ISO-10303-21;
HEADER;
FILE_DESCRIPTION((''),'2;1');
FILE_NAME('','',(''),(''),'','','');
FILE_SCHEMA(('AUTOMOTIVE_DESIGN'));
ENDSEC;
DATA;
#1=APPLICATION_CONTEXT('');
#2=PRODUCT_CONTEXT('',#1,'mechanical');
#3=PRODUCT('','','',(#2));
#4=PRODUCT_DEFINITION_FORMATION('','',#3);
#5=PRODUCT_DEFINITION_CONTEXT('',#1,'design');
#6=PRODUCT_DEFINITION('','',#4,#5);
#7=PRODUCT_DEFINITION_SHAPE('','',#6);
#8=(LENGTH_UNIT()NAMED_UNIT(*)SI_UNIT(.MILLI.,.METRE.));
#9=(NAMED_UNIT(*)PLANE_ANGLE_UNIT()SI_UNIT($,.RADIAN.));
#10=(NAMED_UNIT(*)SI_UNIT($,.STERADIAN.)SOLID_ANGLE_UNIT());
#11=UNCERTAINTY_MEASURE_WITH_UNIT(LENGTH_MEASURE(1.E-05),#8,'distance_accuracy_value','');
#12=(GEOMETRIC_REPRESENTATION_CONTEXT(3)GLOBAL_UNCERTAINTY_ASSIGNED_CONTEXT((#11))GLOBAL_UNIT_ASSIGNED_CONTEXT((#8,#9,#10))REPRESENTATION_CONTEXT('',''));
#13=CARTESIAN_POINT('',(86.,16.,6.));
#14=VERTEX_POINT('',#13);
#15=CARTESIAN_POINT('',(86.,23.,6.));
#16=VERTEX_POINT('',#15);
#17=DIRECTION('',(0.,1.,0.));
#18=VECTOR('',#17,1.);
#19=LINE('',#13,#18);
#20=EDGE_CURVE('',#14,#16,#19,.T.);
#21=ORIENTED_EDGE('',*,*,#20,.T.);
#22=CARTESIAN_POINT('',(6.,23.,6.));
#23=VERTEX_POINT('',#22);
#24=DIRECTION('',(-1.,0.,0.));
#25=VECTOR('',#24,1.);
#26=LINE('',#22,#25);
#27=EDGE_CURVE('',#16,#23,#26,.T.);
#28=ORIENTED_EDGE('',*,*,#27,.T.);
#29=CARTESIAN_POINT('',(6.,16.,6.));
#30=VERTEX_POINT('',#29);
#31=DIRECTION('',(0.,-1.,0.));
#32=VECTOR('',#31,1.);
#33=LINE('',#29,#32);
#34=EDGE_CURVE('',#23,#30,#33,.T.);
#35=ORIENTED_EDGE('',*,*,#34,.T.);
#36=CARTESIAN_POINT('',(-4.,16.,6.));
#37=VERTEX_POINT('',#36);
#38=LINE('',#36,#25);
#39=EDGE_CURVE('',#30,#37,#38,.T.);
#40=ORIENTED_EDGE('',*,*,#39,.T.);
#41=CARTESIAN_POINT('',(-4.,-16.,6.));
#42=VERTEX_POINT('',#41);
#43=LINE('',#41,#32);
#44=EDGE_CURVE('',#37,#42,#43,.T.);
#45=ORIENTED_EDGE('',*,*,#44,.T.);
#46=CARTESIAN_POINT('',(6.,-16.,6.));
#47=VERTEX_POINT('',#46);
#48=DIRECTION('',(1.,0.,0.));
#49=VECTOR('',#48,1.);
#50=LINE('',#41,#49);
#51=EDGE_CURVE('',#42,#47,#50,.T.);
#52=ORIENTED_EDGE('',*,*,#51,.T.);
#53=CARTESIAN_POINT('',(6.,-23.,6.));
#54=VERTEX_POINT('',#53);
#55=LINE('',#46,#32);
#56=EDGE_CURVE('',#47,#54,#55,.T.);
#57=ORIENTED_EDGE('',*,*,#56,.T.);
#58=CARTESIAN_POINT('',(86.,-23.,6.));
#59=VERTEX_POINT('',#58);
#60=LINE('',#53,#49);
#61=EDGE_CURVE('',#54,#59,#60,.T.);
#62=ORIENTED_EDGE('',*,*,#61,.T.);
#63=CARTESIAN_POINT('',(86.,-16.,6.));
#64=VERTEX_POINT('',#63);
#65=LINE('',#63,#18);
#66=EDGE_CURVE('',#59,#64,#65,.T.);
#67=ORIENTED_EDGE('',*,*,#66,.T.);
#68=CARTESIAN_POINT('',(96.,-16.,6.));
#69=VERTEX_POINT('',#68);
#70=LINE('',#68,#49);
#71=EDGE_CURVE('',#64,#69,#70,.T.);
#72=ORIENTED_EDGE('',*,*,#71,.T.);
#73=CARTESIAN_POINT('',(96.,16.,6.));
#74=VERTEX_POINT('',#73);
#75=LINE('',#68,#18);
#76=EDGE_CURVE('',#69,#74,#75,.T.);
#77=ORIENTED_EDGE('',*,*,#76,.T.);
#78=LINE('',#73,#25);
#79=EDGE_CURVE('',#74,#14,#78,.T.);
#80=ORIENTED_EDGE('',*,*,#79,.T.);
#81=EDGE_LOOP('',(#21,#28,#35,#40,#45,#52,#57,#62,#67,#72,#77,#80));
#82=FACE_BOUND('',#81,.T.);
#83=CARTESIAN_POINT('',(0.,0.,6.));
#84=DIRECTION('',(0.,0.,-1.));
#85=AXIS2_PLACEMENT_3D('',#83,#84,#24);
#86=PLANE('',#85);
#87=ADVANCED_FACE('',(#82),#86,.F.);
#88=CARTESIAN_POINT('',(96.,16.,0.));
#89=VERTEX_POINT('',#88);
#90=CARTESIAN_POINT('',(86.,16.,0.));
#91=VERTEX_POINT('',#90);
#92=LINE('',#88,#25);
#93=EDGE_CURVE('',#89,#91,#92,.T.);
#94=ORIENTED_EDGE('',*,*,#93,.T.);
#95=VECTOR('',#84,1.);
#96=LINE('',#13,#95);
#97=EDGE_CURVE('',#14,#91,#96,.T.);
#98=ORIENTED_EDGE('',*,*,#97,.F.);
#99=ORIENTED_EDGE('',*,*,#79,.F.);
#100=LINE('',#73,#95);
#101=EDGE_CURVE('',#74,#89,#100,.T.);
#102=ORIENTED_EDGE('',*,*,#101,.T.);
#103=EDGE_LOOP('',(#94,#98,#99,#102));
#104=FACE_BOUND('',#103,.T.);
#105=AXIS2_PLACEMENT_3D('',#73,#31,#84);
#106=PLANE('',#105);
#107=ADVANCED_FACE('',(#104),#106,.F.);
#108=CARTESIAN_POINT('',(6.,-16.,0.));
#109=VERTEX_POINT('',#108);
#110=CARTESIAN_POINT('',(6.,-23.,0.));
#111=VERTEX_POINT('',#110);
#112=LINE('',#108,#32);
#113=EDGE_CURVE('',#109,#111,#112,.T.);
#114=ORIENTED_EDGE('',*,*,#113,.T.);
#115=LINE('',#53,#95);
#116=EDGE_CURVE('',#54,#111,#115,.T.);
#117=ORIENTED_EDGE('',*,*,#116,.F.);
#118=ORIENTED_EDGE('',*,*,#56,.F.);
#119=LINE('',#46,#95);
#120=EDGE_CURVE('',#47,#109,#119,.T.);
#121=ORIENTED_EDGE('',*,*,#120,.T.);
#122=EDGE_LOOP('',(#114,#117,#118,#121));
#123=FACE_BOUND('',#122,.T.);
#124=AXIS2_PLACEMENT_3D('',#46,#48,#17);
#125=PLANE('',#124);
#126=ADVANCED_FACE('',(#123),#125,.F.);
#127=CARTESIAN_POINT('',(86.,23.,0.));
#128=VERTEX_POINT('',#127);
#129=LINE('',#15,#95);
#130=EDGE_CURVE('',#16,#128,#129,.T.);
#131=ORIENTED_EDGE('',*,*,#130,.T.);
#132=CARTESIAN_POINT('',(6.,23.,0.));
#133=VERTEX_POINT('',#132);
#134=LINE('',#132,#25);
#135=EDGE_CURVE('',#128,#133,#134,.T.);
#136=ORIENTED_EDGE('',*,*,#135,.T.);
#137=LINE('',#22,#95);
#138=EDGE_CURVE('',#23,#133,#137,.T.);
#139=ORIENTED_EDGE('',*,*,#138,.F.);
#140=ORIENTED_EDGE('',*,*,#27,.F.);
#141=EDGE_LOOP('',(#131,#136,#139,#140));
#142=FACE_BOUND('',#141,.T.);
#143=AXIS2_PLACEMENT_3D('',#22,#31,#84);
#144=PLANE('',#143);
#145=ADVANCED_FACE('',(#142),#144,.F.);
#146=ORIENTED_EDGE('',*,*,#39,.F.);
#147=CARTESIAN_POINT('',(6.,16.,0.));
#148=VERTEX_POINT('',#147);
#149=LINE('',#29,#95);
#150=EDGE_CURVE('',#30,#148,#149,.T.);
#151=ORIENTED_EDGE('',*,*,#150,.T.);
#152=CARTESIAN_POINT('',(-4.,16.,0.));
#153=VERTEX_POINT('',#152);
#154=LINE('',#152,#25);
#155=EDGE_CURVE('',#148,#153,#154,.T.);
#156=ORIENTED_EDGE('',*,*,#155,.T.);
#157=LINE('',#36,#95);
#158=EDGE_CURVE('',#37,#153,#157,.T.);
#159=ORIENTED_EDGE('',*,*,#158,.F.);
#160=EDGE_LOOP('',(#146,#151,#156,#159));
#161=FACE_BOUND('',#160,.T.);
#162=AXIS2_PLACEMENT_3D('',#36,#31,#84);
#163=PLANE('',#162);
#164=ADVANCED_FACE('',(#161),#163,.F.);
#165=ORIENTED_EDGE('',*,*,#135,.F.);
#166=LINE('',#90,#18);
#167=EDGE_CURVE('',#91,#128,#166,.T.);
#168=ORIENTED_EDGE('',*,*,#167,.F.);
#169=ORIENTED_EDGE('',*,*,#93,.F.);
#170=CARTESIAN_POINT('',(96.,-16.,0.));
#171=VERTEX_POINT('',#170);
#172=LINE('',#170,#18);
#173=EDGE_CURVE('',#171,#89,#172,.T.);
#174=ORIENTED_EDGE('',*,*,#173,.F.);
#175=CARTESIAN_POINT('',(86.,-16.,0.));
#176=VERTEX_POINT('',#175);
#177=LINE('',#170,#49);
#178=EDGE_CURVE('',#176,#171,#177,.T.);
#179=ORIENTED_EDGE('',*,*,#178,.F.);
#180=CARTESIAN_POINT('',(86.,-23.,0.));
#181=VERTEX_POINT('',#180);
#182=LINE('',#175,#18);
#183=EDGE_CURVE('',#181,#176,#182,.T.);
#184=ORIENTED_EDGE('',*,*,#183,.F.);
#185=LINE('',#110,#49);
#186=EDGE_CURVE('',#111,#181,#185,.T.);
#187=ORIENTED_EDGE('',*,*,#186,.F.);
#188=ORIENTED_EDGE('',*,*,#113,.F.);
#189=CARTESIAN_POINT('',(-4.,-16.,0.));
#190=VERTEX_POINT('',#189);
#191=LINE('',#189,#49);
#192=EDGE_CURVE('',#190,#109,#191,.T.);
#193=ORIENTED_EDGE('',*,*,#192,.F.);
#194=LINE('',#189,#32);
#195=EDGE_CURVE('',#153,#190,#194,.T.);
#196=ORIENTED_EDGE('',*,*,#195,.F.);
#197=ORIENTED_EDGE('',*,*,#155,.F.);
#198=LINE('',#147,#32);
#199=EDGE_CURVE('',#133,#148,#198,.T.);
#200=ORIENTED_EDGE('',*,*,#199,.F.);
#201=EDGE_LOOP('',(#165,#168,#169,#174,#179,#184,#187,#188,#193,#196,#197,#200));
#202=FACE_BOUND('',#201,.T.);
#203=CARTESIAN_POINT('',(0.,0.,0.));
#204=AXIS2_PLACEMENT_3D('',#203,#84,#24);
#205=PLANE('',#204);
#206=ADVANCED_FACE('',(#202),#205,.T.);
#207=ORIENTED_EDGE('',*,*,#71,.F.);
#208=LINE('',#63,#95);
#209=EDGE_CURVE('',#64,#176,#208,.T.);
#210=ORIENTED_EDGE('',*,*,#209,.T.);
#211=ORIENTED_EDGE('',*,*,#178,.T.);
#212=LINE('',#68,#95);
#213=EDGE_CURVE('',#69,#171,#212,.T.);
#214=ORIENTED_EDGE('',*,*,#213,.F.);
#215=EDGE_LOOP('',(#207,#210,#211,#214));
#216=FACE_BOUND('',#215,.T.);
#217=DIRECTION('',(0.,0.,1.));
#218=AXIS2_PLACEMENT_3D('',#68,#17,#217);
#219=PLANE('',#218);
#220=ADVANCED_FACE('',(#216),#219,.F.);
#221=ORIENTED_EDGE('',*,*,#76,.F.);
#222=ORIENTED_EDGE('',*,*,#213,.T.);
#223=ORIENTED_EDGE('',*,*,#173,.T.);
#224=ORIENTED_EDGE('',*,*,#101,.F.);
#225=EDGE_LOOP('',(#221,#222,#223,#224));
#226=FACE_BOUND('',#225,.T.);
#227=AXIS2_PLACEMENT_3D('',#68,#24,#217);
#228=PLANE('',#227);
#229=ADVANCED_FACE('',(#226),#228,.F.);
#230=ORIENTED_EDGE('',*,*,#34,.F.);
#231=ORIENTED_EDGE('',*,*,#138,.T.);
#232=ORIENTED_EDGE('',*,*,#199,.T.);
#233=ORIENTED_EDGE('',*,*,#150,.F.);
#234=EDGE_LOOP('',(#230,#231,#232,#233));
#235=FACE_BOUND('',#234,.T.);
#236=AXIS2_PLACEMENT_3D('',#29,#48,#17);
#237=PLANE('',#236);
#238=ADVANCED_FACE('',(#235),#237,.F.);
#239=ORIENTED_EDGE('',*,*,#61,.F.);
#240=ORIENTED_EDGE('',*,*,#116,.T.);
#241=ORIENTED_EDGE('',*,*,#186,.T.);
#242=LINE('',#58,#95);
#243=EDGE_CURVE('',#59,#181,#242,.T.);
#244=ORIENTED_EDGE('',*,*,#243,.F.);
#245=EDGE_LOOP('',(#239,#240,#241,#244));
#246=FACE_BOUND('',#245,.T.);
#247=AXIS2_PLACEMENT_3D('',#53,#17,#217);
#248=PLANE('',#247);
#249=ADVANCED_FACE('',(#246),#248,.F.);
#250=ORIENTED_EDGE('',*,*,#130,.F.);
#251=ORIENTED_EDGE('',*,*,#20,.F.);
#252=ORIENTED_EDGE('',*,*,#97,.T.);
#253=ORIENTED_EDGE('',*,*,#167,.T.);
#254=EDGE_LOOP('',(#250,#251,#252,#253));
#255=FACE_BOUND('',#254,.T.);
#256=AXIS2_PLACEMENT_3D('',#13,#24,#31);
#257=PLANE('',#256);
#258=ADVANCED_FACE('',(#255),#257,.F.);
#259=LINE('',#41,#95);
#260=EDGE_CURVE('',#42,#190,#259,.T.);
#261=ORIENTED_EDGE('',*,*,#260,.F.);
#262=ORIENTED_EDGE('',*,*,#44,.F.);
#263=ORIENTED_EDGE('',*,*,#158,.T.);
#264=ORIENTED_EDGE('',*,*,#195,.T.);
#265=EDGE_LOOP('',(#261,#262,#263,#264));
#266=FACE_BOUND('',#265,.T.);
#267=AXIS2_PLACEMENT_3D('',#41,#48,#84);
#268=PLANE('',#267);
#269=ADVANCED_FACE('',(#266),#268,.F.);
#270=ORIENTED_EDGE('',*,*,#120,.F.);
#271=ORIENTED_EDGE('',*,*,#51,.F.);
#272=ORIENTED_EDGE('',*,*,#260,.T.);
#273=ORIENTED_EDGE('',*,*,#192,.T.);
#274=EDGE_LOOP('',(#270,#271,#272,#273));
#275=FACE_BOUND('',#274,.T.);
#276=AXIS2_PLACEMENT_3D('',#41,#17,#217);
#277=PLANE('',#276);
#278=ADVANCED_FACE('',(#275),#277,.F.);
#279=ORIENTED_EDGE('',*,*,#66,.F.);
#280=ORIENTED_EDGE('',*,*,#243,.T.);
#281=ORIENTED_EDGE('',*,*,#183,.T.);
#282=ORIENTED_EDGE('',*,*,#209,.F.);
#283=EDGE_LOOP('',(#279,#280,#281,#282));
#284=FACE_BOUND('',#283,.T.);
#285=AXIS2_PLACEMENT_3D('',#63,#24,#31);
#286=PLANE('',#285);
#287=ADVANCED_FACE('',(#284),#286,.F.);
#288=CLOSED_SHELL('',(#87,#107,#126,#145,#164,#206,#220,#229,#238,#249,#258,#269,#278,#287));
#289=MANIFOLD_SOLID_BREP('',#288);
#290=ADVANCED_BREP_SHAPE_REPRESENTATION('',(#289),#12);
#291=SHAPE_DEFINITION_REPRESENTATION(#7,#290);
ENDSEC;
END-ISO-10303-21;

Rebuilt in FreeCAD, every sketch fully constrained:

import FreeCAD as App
import Part
import Sketcher

V = App.Vector
Q = App.Units.Quantity

doc = App.newDocument("Part")
body = doc.addObject("PartDesign::Body", "Body")

sketch1 = body.newObject("Sketcher::SketchObject", "Sketch")
sketch1.AttachmentSupport = (doc.getObject("XY_Plane"), [""])
sketch1.MapMode = "FlatFace"
sketch1.addGeometry(Part.LineSegment(V(-4, 16, 0), V(-4, -16, 0)), False)
sketch1.addGeometry(Part.LineSegment(V(-4, -16, 0), V(6, -16, 0)), False)
sketch1.addGeometry(Part.LineSegment(V(6, -16, 0), V(6, -23, 0)), False)
sketch1.addGeometry(Part.LineSegment(V(6, -23, 0), V(86, -23, 0)), False)
sketch1.addGeometry(Part.LineSegment(V(86, -23, 0), V(86, -16, 0)), False)
sketch1.addGeometry(Part.LineSegment(V(86, -16, 0), V(96, -16, 0)), False)
sketch1.addGeometry(Part.LineSegment(V(96, -16, 0), V(96, 16, 0)), False)
sketch1.addGeometry(Part.LineSegment(V(96, 16, 0), V(86, 16, 0)), False)
sketch1.addGeometry(Part.LineSegment(V(86, 16, 0), V(86, 23, 0)), False)
sketch1.addGeometry(Part.LineSegment(V(86, 23, 0), V(6, 23, 0)), False)
sketch1.addGeometry(Part.LineSegment(V(6, 23, 0), V(6, 16, 0)), False)
sketch1.addGeometry(Part.LineSegment(V(6, 16, 0), V(-4, 16, 0)), False)
sketch1.addConstraint(Sketcher.Constraint("Coincident", 0, 2, 1, 1))
sketch1.addConstraint(Sketcher.Constraint("Coincident", 1, 2, 2, 1))
sketch1.addConstraint(Sketcher.Constraint("Coincident", 2, 2, 3, 1))
sketch1.addConstraint(Sketcher.Constraint("Coincident", 3, 2, 4, 1))
sketch1.addConstraint(Sketcher.Constraint("Coincident", 4, 2, 5, 1))
sketch1.addConstraint(Sketcher.Constraint("Coincident", 5, 2, 6, 1))
sketch1.addConstraint(Sketcher.Constraint("Coincident", 6, 2, 7, 1))
sketch1.addConstraint(Sketcher.Constraint("Coincident", 7, 2, 8, 1))
sketch1.addConstraint(Sketcher.Constraint("Coincident", 8, 2, 9, 1))
sketch1.addConstraint(Sketcher.Constraint("Coincident", 9, 2, 10, 1))
sketch1.addConstraint(Sketcher.Constraint("Coincident", 10, 2, 11, 1))
sketch1.addConstraint(Sketcher.Constraint("Coincident", 11, 2, 0, 1))
sketch1.addConstraint(Sketcher.Constraint("Vertical", 0))
sketch1.addConstraint(Sketcher.Constraint("Horizontal", 1))
sketch1.addConstraint(Sketcher.Constraint("Vertical", 2))
sketch1.addConstraint(Sketcher.Constraint("Horizontal", 3))
sketch1.addConstraint(Sketcher.Constraint("Vertical", 4))
sketch1.addConstraint(Sketcher.Constraint("Horizontal", 5))
sketch1.addConstraint(Sketcher.Constraint("Vertical", 6))
sketch1.addConstraint(Sketcher.Constraint("Horizontal", 7))
sketch1.addConstraint(Sketcher.Constraint("Vertical", 8))
sketch1.addConstraint(Sketcher.Constraint("Horizontal", 9))
sketch1.addConstraint(Sketcher.Constraint("Vertical", 10))
sketch1.addConstraint(Sketcher.Constraint("Horizontal", 11))
sketch1.addConstraint(Sketcher.Constraint("Symmetric", 4, 2, 7, 2, -1))
sketch1.addConstraint(Sketcher.Constraint("Symmetric", 2, 2, 9, 2, -1))
sketch1.addConstraint(Sketcher.Constraint("Horizontal", 1, 2, 4, 2))
sketch1.addConstraint(Sketcher.Constraint("Horizontal", 7, 2, 10, 2))
sketch1.addConstraint(Sketcher.Constraint("Equal", 1, 5))
sketch1.addConstraint(Sketcher.Constraint("DistanceX", 1, 1, 1, 2, Q("10 mm")))
sketch1.addConstraint(Sketcher.Constraint("DistanceX", 3, 1, 3, 2, Q("80 mm")))
sketch1.addConstraint(Sketcher.Constraint("DistanceY", 0, 2, 0, 1, Q("32 mm")))
sketch1.addConstraint(Sketcher.Constraint("DistanceY", 2, 2, 2, 1, Q("7 mm")))
sketch1.addConstraint(Sketcher.Constraint("DistanceX", 0, 2, -1, 1, Q("4 mm")))
pad1 = body.newObject("PartDesign::Pad", "Pad")
pad1.Profile = sketch1
pad1.Length = 6

doc.recompute()
